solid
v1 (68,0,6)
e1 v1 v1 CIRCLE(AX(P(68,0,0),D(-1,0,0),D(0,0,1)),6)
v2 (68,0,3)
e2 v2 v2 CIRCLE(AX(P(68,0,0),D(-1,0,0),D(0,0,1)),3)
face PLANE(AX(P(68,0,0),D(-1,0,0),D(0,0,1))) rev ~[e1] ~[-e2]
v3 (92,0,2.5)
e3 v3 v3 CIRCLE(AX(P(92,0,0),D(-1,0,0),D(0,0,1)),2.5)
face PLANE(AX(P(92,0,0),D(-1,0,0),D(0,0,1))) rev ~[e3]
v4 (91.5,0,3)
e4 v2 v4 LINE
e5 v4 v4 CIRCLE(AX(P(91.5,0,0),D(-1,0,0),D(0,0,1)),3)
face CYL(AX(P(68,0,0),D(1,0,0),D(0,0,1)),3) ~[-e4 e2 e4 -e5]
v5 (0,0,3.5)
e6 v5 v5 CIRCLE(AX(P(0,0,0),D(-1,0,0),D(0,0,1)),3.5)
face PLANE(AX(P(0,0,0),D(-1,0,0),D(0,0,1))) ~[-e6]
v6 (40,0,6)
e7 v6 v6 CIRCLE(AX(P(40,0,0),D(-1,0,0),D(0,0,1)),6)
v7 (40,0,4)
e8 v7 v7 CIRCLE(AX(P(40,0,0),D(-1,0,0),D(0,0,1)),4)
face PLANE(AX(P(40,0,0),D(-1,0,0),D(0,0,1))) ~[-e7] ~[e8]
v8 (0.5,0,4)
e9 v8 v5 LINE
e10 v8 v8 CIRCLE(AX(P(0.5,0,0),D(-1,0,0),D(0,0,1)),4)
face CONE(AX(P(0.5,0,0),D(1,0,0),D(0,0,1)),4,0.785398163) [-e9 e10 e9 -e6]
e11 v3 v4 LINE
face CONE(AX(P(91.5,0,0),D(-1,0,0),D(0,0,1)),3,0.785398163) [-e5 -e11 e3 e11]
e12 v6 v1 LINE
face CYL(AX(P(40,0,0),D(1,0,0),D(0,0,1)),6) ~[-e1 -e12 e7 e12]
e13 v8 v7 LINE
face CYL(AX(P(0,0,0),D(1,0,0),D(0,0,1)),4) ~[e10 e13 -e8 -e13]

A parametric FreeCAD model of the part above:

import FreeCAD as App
import Part
import Sketcher

V = App.Vector


def edges_at(feature, points):
    """Names of the edges that pass closest to the given points."""
    edges = feature.Shape.Edges
    near = lambda p: min(range(len(edges)), key=lambda i: edges[i].distToShape(Part.Vertex(*p))[0])
    return sorted({f"Edge{near(p) + 1}" for p in points})


def add_polygon(sketch, points):
    """Adds a closed chain of lines whose ends are joined by coincident constraints."""
    first, n = sketch.GeometryCount, len(points)
    for a, b in zip(points, points[1:] + points[:1]):
        sketch.addGeometry(Part.LineSegment(App.Vector(*a, 0), App.Vector(*b, 0)), False)
    for i in range(n):
        sketch.addConstraint(Sketcher.Constraint("Coincident", first + i, 2, first + (i + 1) % n, 1))

doc = App.newDocument("Part")
body = doc.addObject("PartDesign::Body", "Body")

sketch1 = body.newObject("Sketcher::SketchObject", "Sketch")
sketch1.AttachmentSupport = (doc.getObject("XZ_Plane"), [""])
sketch1.MapMode = "FlatFace"
add_polygon(sketch1, [(92, 0), (0, 0), (0, 4), (40, 4), (40, 6), (68, 6), (68, 3), (92, 3)])
sketch1.addConstraint(Sketcher.Constraint("Horizontal", 0))
sketch1.addConstraint(Sketcher.Constraint("Vertical", 1))
sketch1.addConstraint(Sketcher.Constraint("Horizontal", 2))
sketch1.addConstraint(Sketcher.Constraint("Vertical", 3))
sketch1.addConstraint(Sketcher.Constraint("Horizontal", 4))
sketch1.addConstraint(Sketcher.Constraint("Vertical", 5))
sketch1.addConstraint(Sketcher.Constraint("Horizontal", 6))
sketch1.addConstraint(Sketcher.Constraint("Vertical", 7))
sketch1.addConstraint(Sketcher.Constraint("Coincident", 0, 2, -1, 1))
sketch1.addConstraint(Sketcher.Constraint("Equal", 5, 7))
sketch1.addConstraint(Sketcher.Constraint("DistanceX", 2, 1, 2, 2, 40.0))
sketch1.addConstraint(Sketcher.Constraint("DistanceX", 4, 1, 4, 2, 28.0))
sketch1.addConstraint(Sketcher.Constraint("DistanceX", 6, 1, 6, 2, 24.0))
sketch1.addConstraint(Sketcher.Constraint("DistanceY", -1, 1, 3, 2, 6.0))
sketch1.addConstraint(Sketcher.Constraint("DistanceY", 1, 1, 1, 2, 4.0))
revolution = body.newObject("PartDesign::Revolution", "Revolution")
revolution.Profile = sketch1
revolution.ReferenceAxis = (sketch1, ["H_Axis"])
revolution.Angle = 360
doc.recompute()

chamfer = body.newObject("PartDesign::Chamfer", "Chamfer")
chamfer.Base = (revolution, edges_at(revolution, [(92, 0, -3), (0, 0, -4)]))
chamfer.Size = 0.5

doc.recompute()
